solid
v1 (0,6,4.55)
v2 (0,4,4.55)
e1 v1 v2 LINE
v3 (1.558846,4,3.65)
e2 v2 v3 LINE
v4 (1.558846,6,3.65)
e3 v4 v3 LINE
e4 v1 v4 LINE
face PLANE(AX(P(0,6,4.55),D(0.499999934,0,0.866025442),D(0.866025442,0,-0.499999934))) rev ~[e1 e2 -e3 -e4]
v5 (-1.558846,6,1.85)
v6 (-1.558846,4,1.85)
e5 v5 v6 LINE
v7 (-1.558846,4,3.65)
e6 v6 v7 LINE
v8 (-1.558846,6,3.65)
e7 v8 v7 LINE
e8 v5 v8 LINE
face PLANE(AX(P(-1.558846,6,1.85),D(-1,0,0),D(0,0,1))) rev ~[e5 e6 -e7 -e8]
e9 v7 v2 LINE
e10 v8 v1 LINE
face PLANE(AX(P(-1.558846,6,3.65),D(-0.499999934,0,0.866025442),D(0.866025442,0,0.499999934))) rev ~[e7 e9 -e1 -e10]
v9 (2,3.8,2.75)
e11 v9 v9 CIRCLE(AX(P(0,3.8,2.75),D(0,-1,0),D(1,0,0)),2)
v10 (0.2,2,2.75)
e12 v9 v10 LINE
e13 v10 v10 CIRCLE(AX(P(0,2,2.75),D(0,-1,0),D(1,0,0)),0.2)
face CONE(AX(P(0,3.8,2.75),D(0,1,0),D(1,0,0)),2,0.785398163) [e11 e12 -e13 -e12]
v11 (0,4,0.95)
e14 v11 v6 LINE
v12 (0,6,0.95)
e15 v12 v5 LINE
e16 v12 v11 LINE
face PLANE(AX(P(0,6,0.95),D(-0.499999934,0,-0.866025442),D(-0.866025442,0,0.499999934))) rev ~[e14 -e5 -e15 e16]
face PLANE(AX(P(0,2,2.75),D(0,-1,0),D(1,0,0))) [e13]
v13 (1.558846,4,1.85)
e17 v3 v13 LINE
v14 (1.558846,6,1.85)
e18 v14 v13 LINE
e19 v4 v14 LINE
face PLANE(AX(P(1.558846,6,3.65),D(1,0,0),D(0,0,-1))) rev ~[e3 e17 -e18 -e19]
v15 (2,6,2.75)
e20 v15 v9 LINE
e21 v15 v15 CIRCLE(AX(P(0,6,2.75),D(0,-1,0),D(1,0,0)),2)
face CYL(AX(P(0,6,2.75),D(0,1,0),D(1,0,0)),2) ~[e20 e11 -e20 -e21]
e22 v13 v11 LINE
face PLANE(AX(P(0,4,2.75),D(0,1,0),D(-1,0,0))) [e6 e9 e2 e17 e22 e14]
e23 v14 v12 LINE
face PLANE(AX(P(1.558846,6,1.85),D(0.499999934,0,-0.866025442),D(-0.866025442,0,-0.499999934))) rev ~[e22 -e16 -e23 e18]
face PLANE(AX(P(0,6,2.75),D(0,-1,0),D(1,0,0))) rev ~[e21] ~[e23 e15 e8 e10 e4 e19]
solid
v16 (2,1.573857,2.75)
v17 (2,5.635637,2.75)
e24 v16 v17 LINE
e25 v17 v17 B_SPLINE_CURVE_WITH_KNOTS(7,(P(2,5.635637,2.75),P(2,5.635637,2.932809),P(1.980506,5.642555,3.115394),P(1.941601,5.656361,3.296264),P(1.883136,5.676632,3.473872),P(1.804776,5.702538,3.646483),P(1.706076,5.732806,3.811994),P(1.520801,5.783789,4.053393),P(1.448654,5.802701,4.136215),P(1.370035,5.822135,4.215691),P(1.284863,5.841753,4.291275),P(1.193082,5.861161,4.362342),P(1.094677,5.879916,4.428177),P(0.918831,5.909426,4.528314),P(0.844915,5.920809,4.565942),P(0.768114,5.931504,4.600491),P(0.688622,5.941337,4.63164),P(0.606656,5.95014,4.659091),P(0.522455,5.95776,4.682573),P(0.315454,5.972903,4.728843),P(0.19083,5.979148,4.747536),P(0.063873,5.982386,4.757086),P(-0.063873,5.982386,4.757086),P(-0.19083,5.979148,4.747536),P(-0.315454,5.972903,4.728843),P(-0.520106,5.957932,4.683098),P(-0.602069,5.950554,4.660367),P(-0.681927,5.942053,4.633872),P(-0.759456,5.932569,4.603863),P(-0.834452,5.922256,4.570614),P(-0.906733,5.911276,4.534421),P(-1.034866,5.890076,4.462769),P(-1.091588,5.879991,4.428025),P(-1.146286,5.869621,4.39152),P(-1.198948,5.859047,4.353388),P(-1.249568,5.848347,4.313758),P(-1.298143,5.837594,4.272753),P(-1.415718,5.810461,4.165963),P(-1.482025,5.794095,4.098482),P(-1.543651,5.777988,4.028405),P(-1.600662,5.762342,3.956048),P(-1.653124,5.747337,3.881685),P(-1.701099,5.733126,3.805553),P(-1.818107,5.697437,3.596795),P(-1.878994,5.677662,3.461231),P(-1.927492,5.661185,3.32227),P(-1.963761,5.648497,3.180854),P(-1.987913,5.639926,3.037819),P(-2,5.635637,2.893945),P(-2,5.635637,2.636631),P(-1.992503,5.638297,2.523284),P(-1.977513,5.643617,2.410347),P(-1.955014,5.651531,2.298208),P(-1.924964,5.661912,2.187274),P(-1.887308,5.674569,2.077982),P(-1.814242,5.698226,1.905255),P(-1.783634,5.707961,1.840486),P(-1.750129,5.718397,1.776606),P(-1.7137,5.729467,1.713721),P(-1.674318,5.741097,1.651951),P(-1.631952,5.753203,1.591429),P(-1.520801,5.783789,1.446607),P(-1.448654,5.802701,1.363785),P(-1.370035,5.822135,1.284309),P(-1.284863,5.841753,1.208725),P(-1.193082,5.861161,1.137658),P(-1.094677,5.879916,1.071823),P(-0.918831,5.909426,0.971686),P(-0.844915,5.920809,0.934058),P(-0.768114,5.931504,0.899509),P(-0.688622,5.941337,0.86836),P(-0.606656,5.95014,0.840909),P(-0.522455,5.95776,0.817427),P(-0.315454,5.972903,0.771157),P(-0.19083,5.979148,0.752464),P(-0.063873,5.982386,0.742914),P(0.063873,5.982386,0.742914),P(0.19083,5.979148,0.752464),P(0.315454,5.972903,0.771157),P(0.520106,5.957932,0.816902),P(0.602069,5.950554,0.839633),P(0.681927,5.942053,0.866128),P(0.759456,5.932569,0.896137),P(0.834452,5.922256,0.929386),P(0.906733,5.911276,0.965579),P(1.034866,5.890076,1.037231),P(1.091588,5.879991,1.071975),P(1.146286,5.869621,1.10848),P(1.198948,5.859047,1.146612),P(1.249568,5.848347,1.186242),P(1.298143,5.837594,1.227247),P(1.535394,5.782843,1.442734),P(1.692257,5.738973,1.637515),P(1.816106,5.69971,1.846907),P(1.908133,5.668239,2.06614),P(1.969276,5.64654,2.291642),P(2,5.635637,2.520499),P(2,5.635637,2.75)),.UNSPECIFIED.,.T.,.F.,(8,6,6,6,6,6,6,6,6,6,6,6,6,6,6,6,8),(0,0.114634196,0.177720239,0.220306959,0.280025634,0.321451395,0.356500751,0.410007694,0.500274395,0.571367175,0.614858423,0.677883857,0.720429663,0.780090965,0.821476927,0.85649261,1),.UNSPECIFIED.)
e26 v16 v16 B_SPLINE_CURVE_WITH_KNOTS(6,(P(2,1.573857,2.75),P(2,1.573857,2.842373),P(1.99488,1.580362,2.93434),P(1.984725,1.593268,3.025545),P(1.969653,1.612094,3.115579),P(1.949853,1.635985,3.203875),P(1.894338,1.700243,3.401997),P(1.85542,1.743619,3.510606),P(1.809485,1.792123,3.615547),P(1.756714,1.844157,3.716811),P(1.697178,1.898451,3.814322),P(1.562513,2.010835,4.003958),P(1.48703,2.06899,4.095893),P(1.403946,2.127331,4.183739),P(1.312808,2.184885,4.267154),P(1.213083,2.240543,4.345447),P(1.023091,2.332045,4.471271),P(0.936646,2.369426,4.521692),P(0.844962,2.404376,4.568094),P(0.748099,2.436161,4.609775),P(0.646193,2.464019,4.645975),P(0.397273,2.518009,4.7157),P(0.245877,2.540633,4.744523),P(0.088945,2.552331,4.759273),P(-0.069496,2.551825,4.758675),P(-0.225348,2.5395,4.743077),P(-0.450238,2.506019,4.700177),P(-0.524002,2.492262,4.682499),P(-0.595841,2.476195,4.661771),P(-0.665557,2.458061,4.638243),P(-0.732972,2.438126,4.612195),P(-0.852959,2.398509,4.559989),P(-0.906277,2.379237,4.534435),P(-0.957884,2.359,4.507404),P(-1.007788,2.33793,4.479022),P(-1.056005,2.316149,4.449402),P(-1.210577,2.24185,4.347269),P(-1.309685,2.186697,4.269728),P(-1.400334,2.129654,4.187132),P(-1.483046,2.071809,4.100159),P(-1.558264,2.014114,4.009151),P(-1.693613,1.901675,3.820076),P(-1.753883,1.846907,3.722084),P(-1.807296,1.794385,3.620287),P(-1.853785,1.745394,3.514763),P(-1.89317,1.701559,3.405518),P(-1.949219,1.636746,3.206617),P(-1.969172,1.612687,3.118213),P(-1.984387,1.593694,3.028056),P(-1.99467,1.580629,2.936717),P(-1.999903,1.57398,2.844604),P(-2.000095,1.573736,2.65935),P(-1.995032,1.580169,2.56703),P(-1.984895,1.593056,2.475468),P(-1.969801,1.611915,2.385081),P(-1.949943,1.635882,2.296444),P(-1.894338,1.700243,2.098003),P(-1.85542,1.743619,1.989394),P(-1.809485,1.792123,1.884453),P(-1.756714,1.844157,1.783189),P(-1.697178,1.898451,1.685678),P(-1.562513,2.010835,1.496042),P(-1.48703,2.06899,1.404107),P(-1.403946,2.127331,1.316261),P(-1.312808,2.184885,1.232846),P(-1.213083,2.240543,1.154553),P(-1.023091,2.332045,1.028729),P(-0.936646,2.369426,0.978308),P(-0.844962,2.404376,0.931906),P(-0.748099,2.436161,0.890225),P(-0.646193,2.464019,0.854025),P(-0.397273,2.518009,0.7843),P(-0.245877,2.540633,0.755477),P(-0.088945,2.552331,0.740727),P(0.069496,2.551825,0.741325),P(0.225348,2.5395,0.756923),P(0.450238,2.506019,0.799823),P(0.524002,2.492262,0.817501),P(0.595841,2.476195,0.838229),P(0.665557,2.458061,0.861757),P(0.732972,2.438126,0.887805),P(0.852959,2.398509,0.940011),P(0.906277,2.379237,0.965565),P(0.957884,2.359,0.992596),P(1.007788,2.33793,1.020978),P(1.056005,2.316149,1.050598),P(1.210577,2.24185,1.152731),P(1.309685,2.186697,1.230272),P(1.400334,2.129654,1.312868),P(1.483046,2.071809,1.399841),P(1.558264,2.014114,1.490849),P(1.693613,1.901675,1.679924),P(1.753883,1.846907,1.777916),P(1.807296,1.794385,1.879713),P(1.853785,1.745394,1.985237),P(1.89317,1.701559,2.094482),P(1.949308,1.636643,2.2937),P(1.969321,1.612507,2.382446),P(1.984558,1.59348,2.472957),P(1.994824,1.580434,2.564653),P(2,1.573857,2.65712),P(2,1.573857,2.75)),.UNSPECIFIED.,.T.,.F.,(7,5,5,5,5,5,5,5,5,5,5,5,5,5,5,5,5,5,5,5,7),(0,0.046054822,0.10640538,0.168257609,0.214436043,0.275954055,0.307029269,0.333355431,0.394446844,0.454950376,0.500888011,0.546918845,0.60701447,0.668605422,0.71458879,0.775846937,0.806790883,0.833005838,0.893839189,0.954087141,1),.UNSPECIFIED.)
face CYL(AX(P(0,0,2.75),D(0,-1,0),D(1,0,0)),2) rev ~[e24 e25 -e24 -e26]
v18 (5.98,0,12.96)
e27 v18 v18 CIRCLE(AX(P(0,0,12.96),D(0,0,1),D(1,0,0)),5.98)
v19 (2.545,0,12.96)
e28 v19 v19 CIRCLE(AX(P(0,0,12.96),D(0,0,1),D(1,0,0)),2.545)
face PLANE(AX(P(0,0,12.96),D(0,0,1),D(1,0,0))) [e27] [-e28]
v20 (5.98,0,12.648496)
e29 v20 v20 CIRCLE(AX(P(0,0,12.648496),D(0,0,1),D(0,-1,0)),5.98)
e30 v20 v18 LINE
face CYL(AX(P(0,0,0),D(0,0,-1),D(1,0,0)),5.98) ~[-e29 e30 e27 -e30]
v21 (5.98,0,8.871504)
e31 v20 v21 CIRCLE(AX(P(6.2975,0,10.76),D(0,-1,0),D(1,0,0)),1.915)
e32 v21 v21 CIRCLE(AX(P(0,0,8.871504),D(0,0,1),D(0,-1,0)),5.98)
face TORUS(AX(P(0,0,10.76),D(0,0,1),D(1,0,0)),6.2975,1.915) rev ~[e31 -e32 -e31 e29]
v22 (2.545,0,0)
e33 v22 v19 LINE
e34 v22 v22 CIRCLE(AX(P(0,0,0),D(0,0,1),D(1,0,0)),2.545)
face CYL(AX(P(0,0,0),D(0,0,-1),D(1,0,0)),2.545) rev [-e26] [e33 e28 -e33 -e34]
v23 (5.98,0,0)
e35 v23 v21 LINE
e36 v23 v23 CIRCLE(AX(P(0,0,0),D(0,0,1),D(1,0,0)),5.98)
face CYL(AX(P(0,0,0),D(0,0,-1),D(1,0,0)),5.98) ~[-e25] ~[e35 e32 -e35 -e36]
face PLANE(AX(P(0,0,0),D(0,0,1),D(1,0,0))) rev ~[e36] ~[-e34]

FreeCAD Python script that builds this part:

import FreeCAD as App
import Part
import Sketcher
from FreeCAD import Vector
Q = App.Units.Quantity


def edges_at(feature, points):
    """Names of the edges that pass closest to the given points."""
    edges = feature.Shape.Edges
    near = lambda p: min(range(len(edges)), key=lambda i: edges[i].distToShape(Part.Vertex(*p))[0])
    return sorted({f"Edge{near(p) + 1}" for p in points})

doc = App.newDocument("Part")
body = doc.addObject("PartDesign::Body", "Body")

sketch1 = body.newObject("Sketcher::SketchObject", "Sketch")
sketch1.AttachmentSupport = (doc.getObject("XY_Plane"), [""])
sketch1.MapMode = "FlatFace"
sketch1.addGeometry([
    Part.Circle(Vector(0, 0, 0), Vector(0, 0, 1), 6),
    Part.Circle(Vector(0, 0, 0), Vector(0, 0, 1), 2.5),
], False)
sketch1.addConstraint([
    Sketcher.Constraint("Coincident", 0, 3, -1, 1),
    Sketcher.Constraint("Coincident", 1, 3, -1, 1),
    Sketcher.Constraint("Diameter", 0, Q("11.96 mm")),
    Sketcher.Constraint("Diameter", 1, Q("5.09 mm")),
])
pad1 = body.newObject("PartDesign::Pad", "Pad")
pad1.Profile = sketch1
pad1.Length = 12.96

sketch2 = body.newObject("Sketcher::SketchObject", "Sketch001")
sketch2.AttachmentSupport = (doc.getObject("XZ_Plane"), [""])
sketch2.MapMode = "FlatFace"
sketch2.addGeometry(Part.Circle(Vector(0, 2.8, 0), Vector(0, 0, 1), 2), False)
sketch2.addConstraint([
    Sketcher.Constraint("PointOnObject", 0, 3, -2),
    Sketcher.Constraint("Diameter", 0, Q("4 mm")),
    Sketcher.Constraint("DistanceY", -1, 1, 0, 3, Q("2.75 mm")),
])
pocket1 = body.newObject("PartDesign::Pocket", "Pocket")
pocket1.Profile = sketch2
pocket1.Type = "ThroughAll"
body2 = doc.addObject("PartDesign::Body", "Body001")

sketch3 = body2.newObject("Sketcher::SketchObject", "Sketch002")
sketch3.AttachmentSupport = (doc.getObject("XZ_Plane001"), [""])
sketch3.MapMode = "FlatFace"
sketch3.addGeometry(Part.Circle(Vector(6.3, 10.8, 0), Vector(0, 0, 1), 1.9), False)
sketch3.addConstraint([
    Sketcher.Constraint("Diameter", 0, Q("3.83 mm")),
    Sketcher.Constraint("DistanceY", -1, 1, 0, 3, Q("10.76 mm")),
    Sketcher.Constraint("DistanceX", -1, 1, 0, 3, Q("6.2975 mm")),
])

sketch4 = body2.newObject("Sketcher::SketchObject", "Sketch003")
sketch4.AttachmentSupport = (doc.getObject("XY_Plane001"), [""])
sketch4.MapMode = "FlatFace"
sketch4.AttachmentOffset = App.Placement(Vector(0, 0, 10.76), App.Rotation())
sketch4.addGeometry(Part.Circle(Vector(0, 0, 0), Vector(0, 0, 1), 6), False)
sketch4.addConstraint([
    Sketcher.Constraint("Coincident", 0, 3, -1, 1),
    Sketcher.Constraint("Diameter", 0, Q("12.595 mm")),
])
doc.recompute()

additivepipe = body2.newObject("PartDesign::AdditivePipe", "AdditivePipe")
additivepipe.Profile = sketch3
additivepipe.Spine = (sketch4, ["Edge1"])
doc.recompute()

boolean = body.newObject("PartDesign::Boolean", "Boolean")
boolean.Type = "Cut"
boolean.addObjects([body2])
body3 = doc.addObject("PartDesign::Body", "Body002")

sketch5 = body3.newObject("Sketcher::SketchObject", "Sketch004")
sketch5.AttachmentSupport = (doc.getObject("XZ_Plane002"), [""])
sketch5.MapMode = "FlatFace"
sketch5.AttachmentOffset = App.Placement(Vector(0, 0, -6), App.Rotation())
sketch5.addGeometry(Part.Circle(Vector(0, 2.8, 0), Vector(0, 0, 1), 2), False)
sketch5.addConstraint([
    Sketcher.Constraint("PointOnObject", 0, 3, -2),
    Sketcher.Constraint("Diameter", 0, Q("4 mm")),
    Sketcher.Constraint("DistanceY", -1, 1, 0, 3, Q("2.75 mm")),
])
pad2 = body3.newObject("PartDesign::Pad", "Pad001")
pad2.Profile = sketch5
pad2.Length = 4
doc.recompute()

chamfer = body3.newObject("PartDesign::Chamfer", "Chamfer")
chamfer.Base = (pad2, edges_at(pad2, [(-2, 2, 2.75)]))
chamfer.Size = 1.8

sketch6 = body3.newObject("Sketcher::SketchObject", "Sketch005")
sketch6.AttachmentSupport = (doc.getObject("XZ_Plane002"), [""])
sketch6.MapMode = "FlatFace"
sketch6.AttachmentOffset = App.Placement(Vector(0, 0, -6), App.Rotation())
sketch6.addGeometry([
    Part.LineSegment(Vector(0, 0.9, 0), Vector(-1.6, 1.9, 0)),
    Part.LineSegment(Vector(-1.6, 1.9, 0), Vector(-1.6, 3.6, 0)),
    Part.LineSegment(Vector(-1.6, 3.6, 0), Vector(0, 4.5, 0)),
    Part.LineSegment(Vector(0, 4.5, 0), Vector(1.6, 3.6, 0)),
    Part.LineSegment(Vector(1.6, 3.6, 0), Vector(1.6, 1.9, 0)),
    Part.LineSegment(Vector(1.6, 1.9, 0), Vector(0, 0.9, 0)),
], False)
sketch6.addConstraint([
    Sketcher.Constraint("Coincident", 0, 2, 1, 1),
    Sketcher.Constraint("Coincident", 1, 2, 2, 1),
    Sketcher.Constraint("Coincident", 2, 2, 3, 1),
    Sketcher.Constraint("Coincident", 3, 2, 4, 1),
    Sketcher.Constraint("Coincident", 4, 2, 5, 1),
    Sketcher.Constraint("Coincident", 5, 2, 0, 1),
    Sketcher.Constraint("Vertical", 1),
    Sketcher.Constraint("Vertical", 4),
    Sketcher.Constraint("Symmetric", 1, 2, 3, 2, -2),
    Sketcher.Constraint("PointOnObject", 2, 2, -2),
    Sketcher.Constraint("PointOnObject", 5, 2, -2),
    Sketcher.Constraint("Parallel", 0, 3),
    Sketcher.Constraint("Parallel", 2, 5),
    Sketcher.Constraint("Angle", 0, Q("150.000004 deg")),
    Sketcher.Constraint("DistanceY", 1, 1, 1, 2, Q("1.8 mm")),
    Sketcher.Constraint("Distance", 0, Q("1.8 mm")),
    Sketcher.Constraint("DistanceY", -1, 1, 0, 2, Q("1.85 mm")),
])
pocket2 = body3.newObject("PartDesign::Pocket", "Pocket001")
pocket2.Profile = sketch6
pocket2.Length = 2
pocket2.Reversed = True

doc.recompute()
